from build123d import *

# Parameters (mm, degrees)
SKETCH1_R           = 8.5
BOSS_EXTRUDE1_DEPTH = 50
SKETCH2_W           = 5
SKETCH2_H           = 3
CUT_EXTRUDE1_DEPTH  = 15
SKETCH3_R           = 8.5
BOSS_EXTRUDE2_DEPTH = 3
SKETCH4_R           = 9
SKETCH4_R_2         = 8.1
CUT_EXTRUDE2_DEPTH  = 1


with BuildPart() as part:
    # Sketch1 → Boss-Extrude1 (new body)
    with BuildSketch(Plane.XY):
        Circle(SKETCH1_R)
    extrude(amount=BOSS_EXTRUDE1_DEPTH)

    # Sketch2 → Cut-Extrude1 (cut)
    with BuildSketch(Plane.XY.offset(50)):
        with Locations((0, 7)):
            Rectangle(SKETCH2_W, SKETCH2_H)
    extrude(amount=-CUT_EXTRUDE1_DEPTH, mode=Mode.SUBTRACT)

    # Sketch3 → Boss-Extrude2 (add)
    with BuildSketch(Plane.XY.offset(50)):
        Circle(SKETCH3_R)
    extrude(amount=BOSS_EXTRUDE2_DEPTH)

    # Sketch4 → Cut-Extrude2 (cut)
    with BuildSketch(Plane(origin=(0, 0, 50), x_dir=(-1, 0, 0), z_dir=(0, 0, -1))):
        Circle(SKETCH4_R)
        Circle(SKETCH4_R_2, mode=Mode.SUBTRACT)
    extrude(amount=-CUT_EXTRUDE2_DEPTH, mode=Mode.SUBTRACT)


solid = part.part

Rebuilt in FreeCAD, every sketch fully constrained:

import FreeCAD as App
import Part
import Sketcher
from FreeCAD import Vector
Q = App.Units.Quantity


def add_polygon(sketch, points):
    """Adds a closed chain of lines whose ends are joined by coincident constraints."""
    first, n = sketch.GeometryCount, len(points)
    for a, b in zip(points, points[1:] + points[:1]):
        sketch.addGeometry(Part.LineSegment(App.Vector(*a, 0), App.Vector(*b, 0)), False)
    for i in range(n):
        sketch.addConstraint(Sketcher.Constraint("Coincident", first + i, 2, first + (i + 1) % n, 1))

doc = App.newDocument("Part")
params = doc.addObject("Spreadsheet::Sheet", "Params")
for row, (alias, value) in enumerate([
    ("sketch1_diameter", "17 mm"),
    ("pad1_length", "50 mm"),
    ("sketch2_width", "5 mm"),
    ("sketch2_height", "3 mm"),
    ("pocket1_length", "15 mm"),
    ("sketch3_diameter", "17 mm"),
    ("pad2_length", "3 mm"),
    ("sketch4_diameter", "18 mm"),
    ("sketch4_diameter2", "16.2 mm"),
    ("pocket2_length", "1 mm"),
], start=1):
    params.set(f"A{row}", alias)
    params.set(f"B{row}", "=" + value)
    params.setAlias(f"B{row}", alias)

body = doc.addObject("PartDesign::Body", "Body")

# Sketch on XY plane
sketch1 = body.newObject("Sketcher::SketchObject", "Sketch")
sketch1.AttachmentSupport = (doc.getObject("XY_Plane"), [""])
sketch1.MapMode = "FlatFace"
sketch1.addGeometry(Part.Circle(Vector(0, 0, 0), Vector(0, 0, 1), 8), False)
sketch1.addConstraint([
    Sketcher.Constraint("Coincident", 0, 3, -1, 1),
    Sketcher.Constraint("Diameter", 0, Q("17 mm")),
])
sketch1.setExpression("Constraints[1]", "Params.sketch1_diameter")
pad1 = body.newObject("PartDesign::Pad", "Pad")
pad1.Profile = sketch1
pad1.setExpression("Length", "Params.pad1_length")

# Sketch on XY plane
sketch2 = body.newObject("Sketcher::SketchObject", "Sketch001")
sketch2.AttachmentSupport = (doc.getObject("XY_Plane"), [""])
sketch2.MapMode = "FlatFace"
sketch2.AttachmentOffset = App.Placement(Vector(0, 0, 50), App.Rotation())
add_polygon(sketch2, [(-2.5, 8.5), (-2.5, 5.5), (2.5, 5.5), (2.5, 8.5)])  # lines 0-3
sketch2.addConstraint([
    Sketcher.Constraint("Vertical", 0),
    Sketcher.Constraint("Horizontal", 1),
    Sketcher.Constraint("Vertical", 2),
    Sketcher.Constraint("Horizontal", 3),
    Sketcher.Constraint("DistanceX", 1, 1, 1, 2, Q("5 mm")),
    Sketcher.Constraint("DistanceY", 0, 2, 0, 1, Q("3 mm")),
    Sketcher.Constraint("DistanceX", 0, 2, -1, 1, Q("2.5 mm")),
    Sketcher.Constraint("DistanceY", -1, 1, 0, 2, Q("5.5 mm")),
])
sketch2.setExpression("Constraints[8]", "Params.sketch2_width")
sketch2.setExpression("Constraints[9]", "Params.sketch2_height")
pocket1 = body.newObject("PartDesign::Pocket", "Pocket")
pocket1.Profile = sketch2
pocket1.setExpression("Length", "Params.pocket1_length")

# Sketch on XY plane
sketch3 = body.newObject("Sketcher::SketchObject", "Sketch002")
sketch3.AttachmentSupport = (doc.getObject("XY_Plane"), [""])
sketch3.MapMode = "FlatFace"
sketch3.AttachmentOffset = App.Placement(Vector(0, 0, 50), App.Rotation())
sketch3.addGeometry(Part.Circle(Vector(0, 0, 0), Vector(0, 0, 1), 8), False)
sketch3.addConstraint([
    Sketcher.Constraint("Coincident", 0, 3, -1, 1),
    Sketcher.Constraint("Diameter", 0, Q("17 mm")),
])
sketch3.setExpression("Constraints[1]", "Params.sketch3_diameter")
pad2 = body.newObject("PartDesign::Pad", "Pad001")
pad2.Profile = sketch3
pad2.setExpression("Length", "Params.pad2_length")

# Sketch on XY plane
sketch4 = body.newObject("Sketcher::SketchObject", "Sketch003")
sketch4.AttachmentSupport = (doc.getObject("XY_Plane"), [""])
sketch4.MapMode = "FlatFace"
sketch4.AttachmentOffset = App.Placement(Vector(0, 0, 50), App.Rotation())
sketch4.addGeometry([
    Part.Circle(Vector(0, 0, 0), Vector(0, 0, 1), 9),
    Part.Circle(Vector(0, 0, 0), Vector(0, 0, 1), 8),
], False)
sketch4.addConstraint([
    Sketcher.Constraint("Coincident", 0, 3, -1, 1),
    Sketcher.Constraint("Coincident", 1, 3, -1, 1),
    Sketcher.Constraint("Diameter", 0, Q("18 mm")),
    Sketcher.Constraint("Diameter", 1, Q("16.2 mm")),
])
sketch4.setExpression("Constraints[2]", "Params.sketch4_diameter")
sketch4.setExpression("Constraints[3]", "Params.sketch4_diameter2")
pocket2 = body.newObject("PartDesign::Pocket", "Pocket001")
pocket2.Profile = sketch4
pocket2.setExpression("Length", "Params.pocket2_length")
pocket2.Reversed = True

doc.recompute()
